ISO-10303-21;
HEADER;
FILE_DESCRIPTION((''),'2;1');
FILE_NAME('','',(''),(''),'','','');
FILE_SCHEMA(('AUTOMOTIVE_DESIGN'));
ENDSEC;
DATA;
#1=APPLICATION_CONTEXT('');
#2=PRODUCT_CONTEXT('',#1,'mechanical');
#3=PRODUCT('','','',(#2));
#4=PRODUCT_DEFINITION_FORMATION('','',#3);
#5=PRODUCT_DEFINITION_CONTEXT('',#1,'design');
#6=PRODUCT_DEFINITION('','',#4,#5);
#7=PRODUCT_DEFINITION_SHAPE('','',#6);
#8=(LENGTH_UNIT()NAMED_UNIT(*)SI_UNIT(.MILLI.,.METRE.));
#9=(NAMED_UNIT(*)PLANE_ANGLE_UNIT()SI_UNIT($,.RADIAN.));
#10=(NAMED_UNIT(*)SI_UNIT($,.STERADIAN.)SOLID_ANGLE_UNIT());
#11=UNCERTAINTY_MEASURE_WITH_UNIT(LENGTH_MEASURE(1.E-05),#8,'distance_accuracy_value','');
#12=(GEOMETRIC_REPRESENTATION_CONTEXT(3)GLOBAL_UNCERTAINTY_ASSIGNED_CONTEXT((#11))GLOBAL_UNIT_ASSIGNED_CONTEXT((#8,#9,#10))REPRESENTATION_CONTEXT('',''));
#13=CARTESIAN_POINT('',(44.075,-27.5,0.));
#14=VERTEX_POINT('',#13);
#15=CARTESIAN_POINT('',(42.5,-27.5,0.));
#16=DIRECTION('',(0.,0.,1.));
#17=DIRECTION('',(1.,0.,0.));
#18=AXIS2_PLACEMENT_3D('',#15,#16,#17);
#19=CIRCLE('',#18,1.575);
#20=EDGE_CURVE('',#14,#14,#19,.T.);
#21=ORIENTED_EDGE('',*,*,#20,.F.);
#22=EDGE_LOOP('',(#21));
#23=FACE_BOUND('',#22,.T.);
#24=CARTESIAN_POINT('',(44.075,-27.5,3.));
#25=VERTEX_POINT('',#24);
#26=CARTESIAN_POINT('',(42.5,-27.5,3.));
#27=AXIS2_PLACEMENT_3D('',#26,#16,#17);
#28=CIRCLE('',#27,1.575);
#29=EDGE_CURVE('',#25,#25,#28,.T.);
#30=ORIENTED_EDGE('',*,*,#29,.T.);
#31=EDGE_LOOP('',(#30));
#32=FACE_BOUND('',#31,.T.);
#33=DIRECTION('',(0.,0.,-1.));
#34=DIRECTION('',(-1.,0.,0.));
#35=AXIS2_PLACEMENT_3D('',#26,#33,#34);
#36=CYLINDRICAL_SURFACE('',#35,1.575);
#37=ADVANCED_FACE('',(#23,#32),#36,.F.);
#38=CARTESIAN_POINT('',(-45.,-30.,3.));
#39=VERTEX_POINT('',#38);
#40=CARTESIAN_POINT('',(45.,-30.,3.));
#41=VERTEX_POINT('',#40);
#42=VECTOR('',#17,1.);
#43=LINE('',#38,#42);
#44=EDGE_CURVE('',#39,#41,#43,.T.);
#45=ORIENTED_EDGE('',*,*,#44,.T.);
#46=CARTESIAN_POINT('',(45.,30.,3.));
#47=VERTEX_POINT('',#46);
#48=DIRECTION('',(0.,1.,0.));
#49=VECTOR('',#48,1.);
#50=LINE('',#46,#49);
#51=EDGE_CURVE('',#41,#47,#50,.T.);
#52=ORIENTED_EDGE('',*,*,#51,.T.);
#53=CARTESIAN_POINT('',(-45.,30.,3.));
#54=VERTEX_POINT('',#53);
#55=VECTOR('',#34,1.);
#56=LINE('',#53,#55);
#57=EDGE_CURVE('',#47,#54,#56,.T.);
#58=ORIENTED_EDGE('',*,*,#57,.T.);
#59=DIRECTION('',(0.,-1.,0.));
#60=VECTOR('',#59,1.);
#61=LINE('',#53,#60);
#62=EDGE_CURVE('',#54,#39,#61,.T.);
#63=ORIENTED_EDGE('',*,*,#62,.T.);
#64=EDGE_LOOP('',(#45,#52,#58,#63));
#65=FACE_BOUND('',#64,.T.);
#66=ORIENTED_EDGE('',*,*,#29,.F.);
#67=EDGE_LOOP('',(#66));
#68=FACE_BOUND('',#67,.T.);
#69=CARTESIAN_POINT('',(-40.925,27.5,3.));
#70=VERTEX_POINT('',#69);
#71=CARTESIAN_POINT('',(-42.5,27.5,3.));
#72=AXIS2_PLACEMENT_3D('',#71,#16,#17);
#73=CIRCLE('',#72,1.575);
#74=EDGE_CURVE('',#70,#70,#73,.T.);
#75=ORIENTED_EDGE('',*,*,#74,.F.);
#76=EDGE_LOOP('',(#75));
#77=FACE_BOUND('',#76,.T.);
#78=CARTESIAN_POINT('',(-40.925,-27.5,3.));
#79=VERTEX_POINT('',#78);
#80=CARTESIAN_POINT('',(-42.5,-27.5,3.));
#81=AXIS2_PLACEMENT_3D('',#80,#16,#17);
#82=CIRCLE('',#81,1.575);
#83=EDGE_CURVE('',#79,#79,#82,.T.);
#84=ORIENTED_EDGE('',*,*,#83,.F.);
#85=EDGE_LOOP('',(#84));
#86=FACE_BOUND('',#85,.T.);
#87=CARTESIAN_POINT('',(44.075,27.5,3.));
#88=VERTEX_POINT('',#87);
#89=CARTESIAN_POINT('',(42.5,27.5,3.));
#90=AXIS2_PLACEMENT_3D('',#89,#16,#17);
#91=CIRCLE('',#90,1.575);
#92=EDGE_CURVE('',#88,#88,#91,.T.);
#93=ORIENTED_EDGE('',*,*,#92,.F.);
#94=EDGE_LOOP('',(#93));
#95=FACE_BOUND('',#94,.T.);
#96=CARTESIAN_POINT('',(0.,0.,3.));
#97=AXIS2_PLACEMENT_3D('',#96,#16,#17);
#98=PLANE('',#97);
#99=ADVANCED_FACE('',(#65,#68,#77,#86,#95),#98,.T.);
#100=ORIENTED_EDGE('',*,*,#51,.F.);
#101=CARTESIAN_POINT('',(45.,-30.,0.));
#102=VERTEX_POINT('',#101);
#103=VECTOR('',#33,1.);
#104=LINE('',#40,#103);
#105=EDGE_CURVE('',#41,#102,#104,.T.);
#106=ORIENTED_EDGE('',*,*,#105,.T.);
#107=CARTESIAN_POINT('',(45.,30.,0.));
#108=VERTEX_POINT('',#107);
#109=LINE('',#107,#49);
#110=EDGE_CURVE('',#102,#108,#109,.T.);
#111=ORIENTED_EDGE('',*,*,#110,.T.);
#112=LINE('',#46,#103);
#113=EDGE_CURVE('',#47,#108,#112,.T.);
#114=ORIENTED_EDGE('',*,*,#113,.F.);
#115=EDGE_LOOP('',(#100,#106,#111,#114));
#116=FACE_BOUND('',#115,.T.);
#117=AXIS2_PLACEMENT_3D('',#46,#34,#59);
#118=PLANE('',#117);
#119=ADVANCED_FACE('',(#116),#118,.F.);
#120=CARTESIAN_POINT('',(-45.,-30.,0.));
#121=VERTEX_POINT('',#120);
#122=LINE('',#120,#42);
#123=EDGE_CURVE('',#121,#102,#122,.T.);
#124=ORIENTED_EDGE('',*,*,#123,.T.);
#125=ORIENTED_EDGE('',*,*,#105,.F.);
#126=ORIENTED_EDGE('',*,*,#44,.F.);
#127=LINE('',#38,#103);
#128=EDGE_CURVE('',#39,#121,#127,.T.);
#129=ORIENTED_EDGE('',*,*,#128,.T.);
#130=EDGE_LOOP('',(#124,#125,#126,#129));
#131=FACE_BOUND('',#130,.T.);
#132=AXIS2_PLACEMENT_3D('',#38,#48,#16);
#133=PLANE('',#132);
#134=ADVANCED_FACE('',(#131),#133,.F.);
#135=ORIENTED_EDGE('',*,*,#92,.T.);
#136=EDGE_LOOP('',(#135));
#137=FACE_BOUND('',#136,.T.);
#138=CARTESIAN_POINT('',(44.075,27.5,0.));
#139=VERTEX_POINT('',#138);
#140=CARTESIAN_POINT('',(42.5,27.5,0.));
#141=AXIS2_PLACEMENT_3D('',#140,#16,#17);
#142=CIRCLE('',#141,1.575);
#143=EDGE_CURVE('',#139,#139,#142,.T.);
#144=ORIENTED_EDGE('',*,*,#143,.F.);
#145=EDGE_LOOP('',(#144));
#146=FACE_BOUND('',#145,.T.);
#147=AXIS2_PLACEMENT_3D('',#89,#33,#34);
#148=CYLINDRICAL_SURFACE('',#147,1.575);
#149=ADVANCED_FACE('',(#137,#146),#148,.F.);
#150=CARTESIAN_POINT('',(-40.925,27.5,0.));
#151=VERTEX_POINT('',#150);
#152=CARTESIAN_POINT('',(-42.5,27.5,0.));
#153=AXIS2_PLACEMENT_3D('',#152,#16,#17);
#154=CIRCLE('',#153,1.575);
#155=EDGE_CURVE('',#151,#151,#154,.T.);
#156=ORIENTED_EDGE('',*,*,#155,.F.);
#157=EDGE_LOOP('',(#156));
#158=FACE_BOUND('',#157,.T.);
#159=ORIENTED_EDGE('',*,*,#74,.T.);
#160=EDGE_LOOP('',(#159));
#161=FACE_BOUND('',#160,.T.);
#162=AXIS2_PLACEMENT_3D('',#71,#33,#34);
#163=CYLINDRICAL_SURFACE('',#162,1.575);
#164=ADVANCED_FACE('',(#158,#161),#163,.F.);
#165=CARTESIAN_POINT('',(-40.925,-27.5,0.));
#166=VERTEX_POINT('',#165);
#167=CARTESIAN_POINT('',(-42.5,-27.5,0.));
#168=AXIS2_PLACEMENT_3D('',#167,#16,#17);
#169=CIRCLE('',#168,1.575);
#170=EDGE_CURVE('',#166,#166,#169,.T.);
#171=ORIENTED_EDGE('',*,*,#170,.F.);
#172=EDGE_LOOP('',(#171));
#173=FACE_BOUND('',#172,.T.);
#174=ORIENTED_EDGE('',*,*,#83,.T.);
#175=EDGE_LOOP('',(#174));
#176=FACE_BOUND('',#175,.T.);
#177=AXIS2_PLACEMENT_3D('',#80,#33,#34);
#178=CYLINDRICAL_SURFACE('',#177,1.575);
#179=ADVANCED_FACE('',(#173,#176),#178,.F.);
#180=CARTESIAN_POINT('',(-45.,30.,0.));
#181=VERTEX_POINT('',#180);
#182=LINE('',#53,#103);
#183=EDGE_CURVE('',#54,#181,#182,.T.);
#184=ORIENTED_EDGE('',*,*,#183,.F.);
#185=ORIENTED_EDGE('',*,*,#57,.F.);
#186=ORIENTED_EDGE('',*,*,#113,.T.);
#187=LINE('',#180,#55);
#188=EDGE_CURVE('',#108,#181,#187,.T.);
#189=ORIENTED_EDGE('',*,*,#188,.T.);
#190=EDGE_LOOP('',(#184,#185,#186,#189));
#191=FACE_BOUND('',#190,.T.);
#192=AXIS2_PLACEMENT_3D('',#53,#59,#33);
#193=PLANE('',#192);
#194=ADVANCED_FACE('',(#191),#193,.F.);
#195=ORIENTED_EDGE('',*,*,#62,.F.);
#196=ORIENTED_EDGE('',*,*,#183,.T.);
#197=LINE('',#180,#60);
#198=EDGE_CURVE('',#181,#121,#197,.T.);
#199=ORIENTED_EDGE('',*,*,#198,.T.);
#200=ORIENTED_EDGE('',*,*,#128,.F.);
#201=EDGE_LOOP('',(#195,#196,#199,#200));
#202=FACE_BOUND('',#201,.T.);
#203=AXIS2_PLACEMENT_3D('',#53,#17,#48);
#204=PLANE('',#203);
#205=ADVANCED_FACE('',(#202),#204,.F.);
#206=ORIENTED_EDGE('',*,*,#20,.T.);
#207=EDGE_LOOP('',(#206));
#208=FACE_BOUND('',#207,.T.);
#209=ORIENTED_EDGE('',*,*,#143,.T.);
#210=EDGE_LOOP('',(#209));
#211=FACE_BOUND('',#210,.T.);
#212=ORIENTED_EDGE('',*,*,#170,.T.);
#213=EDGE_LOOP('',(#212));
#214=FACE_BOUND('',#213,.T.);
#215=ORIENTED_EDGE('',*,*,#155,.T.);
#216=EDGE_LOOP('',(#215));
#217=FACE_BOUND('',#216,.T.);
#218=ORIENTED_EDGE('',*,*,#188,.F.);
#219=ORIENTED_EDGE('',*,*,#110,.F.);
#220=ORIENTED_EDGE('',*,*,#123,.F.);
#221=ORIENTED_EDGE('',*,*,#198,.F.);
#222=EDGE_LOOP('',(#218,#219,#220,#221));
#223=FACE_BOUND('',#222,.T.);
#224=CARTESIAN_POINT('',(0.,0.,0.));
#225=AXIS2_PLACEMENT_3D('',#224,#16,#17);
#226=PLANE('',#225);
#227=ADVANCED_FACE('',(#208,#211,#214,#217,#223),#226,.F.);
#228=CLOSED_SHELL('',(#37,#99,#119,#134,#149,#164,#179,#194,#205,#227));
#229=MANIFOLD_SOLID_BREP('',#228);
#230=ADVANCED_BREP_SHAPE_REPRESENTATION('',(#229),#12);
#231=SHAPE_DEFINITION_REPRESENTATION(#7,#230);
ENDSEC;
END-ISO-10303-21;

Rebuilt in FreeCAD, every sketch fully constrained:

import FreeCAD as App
import Part
import Sketcher
Q = App.Units.Quantity


def add_polygon(sketch, points):
    """Adds a closed chain of lines whose ends are joined by coincident constraints."""
    first, n = sketch.GeometryCount, len(points)
    for a, b in zip(points, points[1:] + points[:1]):
        sketch.addGeometry(Part.LineSegment(App.Vector(*a, 0), App.Vector(*b, 0)), False)
    for i in range(n):
        sketch.addConstraint(Sketcher.Constraint("Coincident", first + i, 2, first + (i + 1) % n, 1))

doc = App.newDocument("Part")
body = doc.addObject("PartDesign::Body", "Body")

# Sketch on XY plane
sketch1 = body.newObject("Sketcher::SketchObject", "Sketch")
sketch1.AttachmentSupport = (doc.getObject("XY_Plane"), [""])
sketch1.MapMode = "FlatFace"
add_polygon(sketch1, [(-45, 30), (-45, -30), (45, -30), (45, 30)])  # lines 0-3
sketch1.addGeometry(Part.Circle(App.Vector(-42.5, -27.5, 0), App.Vector(0, 0, 1), 1.6), False)  # 4
sketch1.addGeometry(Part.Circle(App.Vector(42.5, -27.5, 0), App.Vector(0, 0, 1), 1.6), False)  # 5
sketch1.addGeometry(Part.Circle(App.Vector(-42.5, 27.5, 0), App.Vector(0, 0, 1), 1.6), False)  # 6
sketch1.addGeometry(Part.Circle(App.Vector(42.5, 27.5, 0), App.Vector(0, 0, 1), 1.6), False)  # 7
sketch1.addConstraint(Sketcher.Constraint("Vertical", 0))
sketch1.addConstraint(Sketcher.Constraint("Horizontal", 1))
sketch1.addConstraint(Sketcher.Constraint("Vertical", 2))
sketch1.addConstraint(Sketcher.Constraint("Horizontal", 3))
sketch1.addConstraint(Sketcher.Constraint("Equal", 4, 5))
sketch1.addConstraint(Sketcher.Constraint("Equal", 5, 6))
sketch1.addConstraint(Sketcher.Constraint("Equal", 6, 7))
sketch1.addConstraint(Sketcher.Constraint("Symmetric", 5, 3, 6, 3, -1, 1))
sketch1.addConstraint(Sketcher.Constraint("Symmetric", 4, 3, 7, 3, -1, 1))
sketch1.addConstraint(Sketcher.Constraint("Symmetric", 0, 2, 2, 2, -1, 1))
sketch1.addConstraint(Sketcher.Constraint("Symmetric", 4, 3, 5, 3, -2))
sketch1.addConstraint(Sketcher.Constraint("Diameter", 4, Q("3.15 mm")))
sketch1.addConstraint(Sketcher.Constraint("DistanceX", 1, 1, 1, 2, Q("90 mm")))
sketch1.addConstraint(Sketcher.Constraint("DistanceY", 0, 2, 0, 1, Q("60 mm")))
sketch1.addConstraint(Sketcher.Constraint("DistanceX", 4, 3, 5, 3, Q("85 mm")))
sketch1.addConstraint(Sketcher.Constraint("DistanceY", 4, 3, 6, 3, Q("55 mm")))
pad1 = body.newObject("PartDesign::Pad", "Pad")
pad1.Profile = sketch1
pad1.Length = 3

doc.recompute()
